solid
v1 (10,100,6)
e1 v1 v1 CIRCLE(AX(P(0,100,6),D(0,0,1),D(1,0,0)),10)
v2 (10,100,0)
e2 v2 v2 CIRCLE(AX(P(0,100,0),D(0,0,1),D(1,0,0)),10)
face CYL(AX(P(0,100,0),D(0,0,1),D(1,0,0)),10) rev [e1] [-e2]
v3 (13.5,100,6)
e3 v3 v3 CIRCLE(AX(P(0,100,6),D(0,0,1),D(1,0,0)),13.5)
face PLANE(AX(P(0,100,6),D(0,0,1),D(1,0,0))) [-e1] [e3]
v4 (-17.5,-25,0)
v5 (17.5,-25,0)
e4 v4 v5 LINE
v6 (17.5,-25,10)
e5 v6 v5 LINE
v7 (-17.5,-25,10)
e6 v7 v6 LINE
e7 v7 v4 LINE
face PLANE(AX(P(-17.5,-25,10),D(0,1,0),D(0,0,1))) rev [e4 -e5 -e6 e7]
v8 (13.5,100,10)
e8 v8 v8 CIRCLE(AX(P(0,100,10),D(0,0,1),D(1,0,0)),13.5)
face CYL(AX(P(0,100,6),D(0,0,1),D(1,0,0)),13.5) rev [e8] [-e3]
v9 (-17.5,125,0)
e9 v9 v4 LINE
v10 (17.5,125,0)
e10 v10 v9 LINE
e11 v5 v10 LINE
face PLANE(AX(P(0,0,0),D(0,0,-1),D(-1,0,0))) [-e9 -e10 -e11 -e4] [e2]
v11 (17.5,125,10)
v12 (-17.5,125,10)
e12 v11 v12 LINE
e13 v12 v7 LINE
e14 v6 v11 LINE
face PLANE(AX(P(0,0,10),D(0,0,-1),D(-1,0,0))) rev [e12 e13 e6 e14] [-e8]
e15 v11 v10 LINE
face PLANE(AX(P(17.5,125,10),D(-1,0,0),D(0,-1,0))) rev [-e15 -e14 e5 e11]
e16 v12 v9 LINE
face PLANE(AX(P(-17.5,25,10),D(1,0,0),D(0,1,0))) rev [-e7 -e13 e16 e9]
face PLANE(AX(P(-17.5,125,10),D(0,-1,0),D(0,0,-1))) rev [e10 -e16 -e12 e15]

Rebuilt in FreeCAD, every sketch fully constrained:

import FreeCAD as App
import Part
import Sketcher
from FreeCAD import Vector
Q = App.Units.Quantity

doc = App.newDocument("Part")
body = doc.addObject("PartDesign::Body", "Body")

sketch1 = body.newObject("Sketcher::SketchObject", "Sketch")
sketch1.AttachmentSupport = (doc.getObject("XY_Plane"), [""])
sketch1.MapMode = "FlatFace"
sketch1.addGeometry([
    Part.LineSegment(Vector(-18, 125, 0), Vector(-18, -25, 0)),
    Part.LineSegment(Vector(-18, -25, 0), Vector(18, -25, 0)),
    Part.LineSegment(Vector(18, -25, 0), Vector(18, 125, 0)),
    Part.LineSegment(Vector(18, 125, 0), Vector(-18, 125, 0)),
], False)
sketch1.addConstraint([
    Sketcher.Constraint("Coincident", 0, 2, 1, 1),
    Sketcher.Constraint("Coincident", 1, 2, 2, 1),
    Sketcher.Constraint("Coincident", 2, 2, 3, 1),
    Sketcher.Constraint("Coincident", 3, 2, 0, 1),
    Sketcher.Constraint("Vertical", 0),
    Sketcher.Constraint("Horizontal", 1),
    Sketcher.Constraint("Vertical", 2),
    Sketcher.Constraint("Horizontal", 3),
    Sketcher.Constraint("DistanceX", 1, 1, 1, 2, Q("35 mm")),
    Sketcher.Constraint("DistanceY", 0, 2, 0, 1, Q("150 mm")),
    Sketcher.Constraint("DistanceY", 0, 2, -1, 1, Q("25 mm")),
    Sketcher.Constraint("DistanceX", 0, 2, -1, 1, Q("17.5 mm")),
])
pad1 = body.newObject("PartDesign::Pad", "Pad")
pad1.Profile = sketch1
pad1.Length = 10

sketch2 = body.newObject("Sketcher::SketchObject", "Sketch001")
sketch2.AttachmentSupport = (doc.getObject("XY_Plane"), [""])
sketch2.MapMode = "FlatFace"
sketch2.AttachmentOffset = App.Placement(Vector(0, 0, 10), App.Rotation())
sketch2.addGeometry(Part.Circle(Vector(0, 100, 0), Vector(0, 0, 1), 14), False)
sketch2.addConstraint([
    Sketcher.Constraint("PointOnObject", 0, 3, -2),
    Sketcher.Constraint("Diameter", 0, Q("27 mm")),
    Sketcher.Constraint("DistanceY", -1, 1, 0, 3, Q("100 mm")),
])
pocket1 = body.newObject("PartDesign::Pocket", "Pocket")
pocket1.Profile = sketch2
pocket1.Length = 4

sketch3 = body.newObject("Sketcher::SketchObject", "Sketch002")
sketch3.AttachmentSupport = (doc.getObject("XY_Plane"), [""])
sketch3.MapMode = "FlatFace"
sketch3.AttachmentOffset = App.Placement(Vector(0, 0, 6), App.Rotation())
sketch3.addGeometry(Part.Circle(Vector(0, 100, 0), Vector(0, 0, 1), 10), False)
sketch3.addConstraint([
    Sketcher.Constraint("PointOnObject", 0, 3, -2),
    Sketcher.Constraint("Diameter", 0, Q("20 mm")),
    Sketcher.Constraint("DistanceY", -1, 1, 0, 3, Q("100 mm")),
])
pocket2 = body.newObject("PartDesign::Pocket", "Pocket001")
pocket2.Profile = sketch3
pocket2.Type = "ThroughAll"

doc.recompute()
